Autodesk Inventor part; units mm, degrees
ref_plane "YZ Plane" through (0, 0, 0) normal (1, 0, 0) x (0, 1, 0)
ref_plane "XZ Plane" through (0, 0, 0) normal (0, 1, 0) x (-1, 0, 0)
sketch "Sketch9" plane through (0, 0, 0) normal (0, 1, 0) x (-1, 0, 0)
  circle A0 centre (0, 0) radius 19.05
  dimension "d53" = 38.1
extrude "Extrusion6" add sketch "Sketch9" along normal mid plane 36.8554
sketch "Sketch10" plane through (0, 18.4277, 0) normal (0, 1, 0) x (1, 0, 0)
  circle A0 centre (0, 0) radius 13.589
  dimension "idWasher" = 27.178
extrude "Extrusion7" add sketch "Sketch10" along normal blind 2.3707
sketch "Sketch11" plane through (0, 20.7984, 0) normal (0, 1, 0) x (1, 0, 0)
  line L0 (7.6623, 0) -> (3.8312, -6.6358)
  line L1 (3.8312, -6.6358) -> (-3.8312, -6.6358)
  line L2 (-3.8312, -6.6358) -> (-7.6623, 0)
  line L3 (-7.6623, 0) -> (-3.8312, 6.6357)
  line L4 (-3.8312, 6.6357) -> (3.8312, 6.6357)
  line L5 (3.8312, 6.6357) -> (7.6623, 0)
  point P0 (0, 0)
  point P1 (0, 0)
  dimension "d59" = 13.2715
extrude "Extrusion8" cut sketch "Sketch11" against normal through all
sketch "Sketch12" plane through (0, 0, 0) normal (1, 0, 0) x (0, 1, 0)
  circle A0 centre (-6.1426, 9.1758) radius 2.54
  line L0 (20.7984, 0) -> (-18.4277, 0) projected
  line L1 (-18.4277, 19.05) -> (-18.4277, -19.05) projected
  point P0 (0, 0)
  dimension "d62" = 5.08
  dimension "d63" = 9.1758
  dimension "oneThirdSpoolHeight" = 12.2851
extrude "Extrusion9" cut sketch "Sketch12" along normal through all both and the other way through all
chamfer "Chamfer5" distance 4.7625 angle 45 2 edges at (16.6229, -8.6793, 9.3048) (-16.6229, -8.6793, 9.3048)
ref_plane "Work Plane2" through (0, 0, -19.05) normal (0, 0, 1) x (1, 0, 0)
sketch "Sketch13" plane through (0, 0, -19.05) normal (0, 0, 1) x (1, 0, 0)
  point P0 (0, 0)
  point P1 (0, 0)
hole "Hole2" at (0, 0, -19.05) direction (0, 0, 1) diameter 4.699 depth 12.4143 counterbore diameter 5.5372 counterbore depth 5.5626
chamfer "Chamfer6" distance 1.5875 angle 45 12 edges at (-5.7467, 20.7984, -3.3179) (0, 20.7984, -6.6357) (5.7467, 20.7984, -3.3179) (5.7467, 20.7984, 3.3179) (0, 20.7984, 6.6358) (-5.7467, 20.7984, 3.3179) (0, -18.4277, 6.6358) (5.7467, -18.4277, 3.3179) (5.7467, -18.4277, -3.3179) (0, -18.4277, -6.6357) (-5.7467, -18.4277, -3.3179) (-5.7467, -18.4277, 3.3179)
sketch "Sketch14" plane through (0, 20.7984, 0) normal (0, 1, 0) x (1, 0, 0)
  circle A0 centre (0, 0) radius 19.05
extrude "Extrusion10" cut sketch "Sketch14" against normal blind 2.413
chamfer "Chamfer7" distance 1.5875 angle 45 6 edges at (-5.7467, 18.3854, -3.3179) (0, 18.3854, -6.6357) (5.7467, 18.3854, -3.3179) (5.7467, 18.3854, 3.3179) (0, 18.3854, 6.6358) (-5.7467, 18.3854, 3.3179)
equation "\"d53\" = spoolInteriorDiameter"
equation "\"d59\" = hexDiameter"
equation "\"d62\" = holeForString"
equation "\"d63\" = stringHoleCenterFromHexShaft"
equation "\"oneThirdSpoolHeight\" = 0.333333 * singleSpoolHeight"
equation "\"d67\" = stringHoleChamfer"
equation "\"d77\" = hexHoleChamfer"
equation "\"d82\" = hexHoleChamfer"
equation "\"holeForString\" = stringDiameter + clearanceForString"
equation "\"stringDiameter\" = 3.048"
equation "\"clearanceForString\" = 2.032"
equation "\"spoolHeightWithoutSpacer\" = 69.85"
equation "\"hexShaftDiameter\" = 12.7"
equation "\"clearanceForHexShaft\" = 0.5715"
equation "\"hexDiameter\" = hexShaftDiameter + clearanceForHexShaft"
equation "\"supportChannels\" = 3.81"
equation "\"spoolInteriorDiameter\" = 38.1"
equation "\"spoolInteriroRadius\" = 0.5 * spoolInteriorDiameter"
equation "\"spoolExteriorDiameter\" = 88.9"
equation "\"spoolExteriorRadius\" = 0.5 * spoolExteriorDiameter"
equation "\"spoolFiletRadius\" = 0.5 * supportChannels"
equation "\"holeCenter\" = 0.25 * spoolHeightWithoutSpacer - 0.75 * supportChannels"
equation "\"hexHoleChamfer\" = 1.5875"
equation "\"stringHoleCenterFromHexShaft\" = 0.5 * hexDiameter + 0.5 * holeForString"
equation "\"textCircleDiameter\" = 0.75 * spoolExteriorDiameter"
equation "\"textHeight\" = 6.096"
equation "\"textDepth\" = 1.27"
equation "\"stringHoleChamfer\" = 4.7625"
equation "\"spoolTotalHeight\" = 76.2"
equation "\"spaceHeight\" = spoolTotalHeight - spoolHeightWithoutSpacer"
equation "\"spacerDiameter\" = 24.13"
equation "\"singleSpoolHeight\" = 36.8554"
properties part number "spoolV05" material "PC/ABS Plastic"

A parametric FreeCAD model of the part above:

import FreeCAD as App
import Part
import Sketcher
from FreeCAD import Vector
Q = App.Units.Quantity


def edges_at(feature, points):
    """Names of the edges that pass closest to the given points."""
    edges = feature.Shape.Edges
    near = lambda p: min(range(len(edges)), key=lambda i: edges[i].distToShape(Part.Vertex(*p))[0])
    return sorted({f"Edge{near(p) + 1}" for p in points})


def add_polygon(sketch, points):
    """Adds a closed chain of lines whose ends are joined by coincident constraints."""
    first, n = sketch.GeometryCount, len(points)
    for a, b in zip(points, points[1:] + points[:1]):
        sketch.addGeometry(Part.LineSegment(App.Vector(*a, 0), App.Vector(*b, 0)), False)
    for i in range(n):
        sketch.addConstraint(Sketcher.Constraint("Coincident", first + i, 2, first + (i + 1) % n, 1))

doc = App.newDocument("Part")
body = doc.addObject("PartDesign::Body", "Body")

# Sketch on XZ plane
sketch1 = body.newObject("Sketcher::SketchObject", "Sketch")
sketch1.AttachmentSupport = (doc.getObject("XZ_Plane"), [""])
sketch1.MapMode = "FlatFace"
sketch1.addGeometry(Part.Circle(Vector(0, 0, 0), Vector(0, 0, 1), 19.05), False)
sketch1.addConstraint([
    Sketcher.Constraint("Coincident", 0, 3, -1, 1),
    Sketcher.Constraint("Diameter", 0, Q("1.5 in")),
])
pad1 = body.newObject("PartDesign::Pad", "Pad")
pad1.Profile = sketch1
pad1.Length = Q("1.451 in")
pad1.Midplane = True

# Sketch on XZ plane
sketch2 = body.newObject("Sketcher::SketchObject", "Sketch001")
sketch2.AttachmentSupport = (doc.getObject("XZ_Plane"), [""])
sketch2.MapMode = "FlatFace"
sketch2.AttachmentOffset = App.Placement(Vector(0, 0, -0.7255 * 25.4), App.Rotation())
sketch2.addGeometry(Part.Circle(Vector(0, 0, 0), Vector(0, 0, 1), 13.589), False)
sketch2.addConstraint([
    Sketcher.Constraint("Coincident", 0, 3, -1, 1),
    Sketcher.Constraint("Diameter", 0, Q("1.07 in")),
])
pad2 = body.newObject("PartDesign::Pad", "Pad001")
pad2.Profile = sketch2
pad2.Length = 2.3707
pad2.Reversed = True

# Sketch on XZ plane
sketch3 = body.newObject("Sketcher::SketchObject", "Sketch002")
sketch3.AttachmentSupport = (doc.getObject("XZ_Plane"), [""])
sketch3.MapMode = "FlatFace"
sketch3.AttachmentOffset = App.Placement(Vector(0, 0, -20.7984), App.Rotation())
add_polygon(sketch3, [(3.8312, 6.6358), (7.6623, 0), (3.8312, -6.6357), (-3.8312, -6.6357), (-7.6623, 0), (-3.8312, 6.6358)])  # lines 0-5
sketch3.addConstraint([
    Sketcher.Constraint("Horizontal", 2),
    Sketcher.Constraint("Horizontal", 5),
    Sketcher.Constraint("Symmetric", 0, 2, 3, 2, -1, 1),
    Sketcher.Constraint("Symmetric", 1, 2, 4, 2, -1, 1),
    Sketcher.Constraint("PointOnObject", 0, 2, -1),
    Sketcher.Constraint("Parallel", 0, 3),
    Sketcher.Constraint("Vertical", 2, 2, 4, 2),
    Sketcher.Constraint("Angle", 0, Q("-60.0005 deg")),
    Sketcher.Constraint("DistanceY", 2, 2, 4, 2, Q("0.5225 in")),
    Sketcher.Constraint("DistanceX", 2, 2, 2, 1, Q("7.6624 mm")),
])
pocket1 = body.newObject("PartDesign::Pocket", "Pocket")
pocket1.Profile = sketch3
pocket1.Type = "ThroughAll"
pocket1.Reversed = True

# Sketch on YZ plane
sketch4 = body.newObject("Sketcher::SketchObject", "Sketch003")
sketch4.AttachmentSupport = (doc.getObject("YZ_Plane"), [""])
sketch4.MapMode = "FlatFace"
sketch4.addGeometry(Part.Circle(Vector(-6.1426, 9.1758, 0), Vector(0, 0, 1), 2.54), False)
sketch4.addConstraint([
    Sketcher.Constraint("Diameter", 0, Q("0.2 in")),
    Sketcher.Constraint("DistanceY", -1, 1, 0, 3, Q("9.1758 mm")),
    Sketcher.Constraint("DistanceX", 0, 3, -1, 1, Q("6.1426 mm")),
])
pocket2 = body.newObject("PartDesign::Pocket", "Pocket001")
pocket2.Profile = sketch4
pocket2.Type = "ThroughAll"
pocket2.Midplane = True
doc.recompute()

chamfer = body.newObject("PartDesign::Chamfer", "Chamfer")
chamfer.Base = (pocket2, edges_at(pocket2, [(16.623, -8.679, 9.305), (-16.623, -8.679, 9.305)]))
chamfer.Size = Q("0.1875 in")

# Sketch on XY plane
sketch5 = body.newObject("Sketcher::SketchObject", "Sketch004")
sketch5.AttachmentSupport = (doc.getObject("XY_Plane"), [""])
sketch5.MapMode = "FlatFace"
sketch5.AttachmentOffset = App.Placement(Vector(0, 0, -0.75 * 25.4), App.Rotation())
sketch5.addGeometry(Part.Circle(Vector(0, 0, 0), Vector(0, 0, 1), 2.3495), False)
sketch5.addConstraint([
    Sketcher.Constraint("Coincident", 0, 3, -1, 1),
    Sketcher.Constraint("Diameter", 0, Q("0.185 in")),
])
doc.recompute()
hole = body.newObject("PartDesign::Hole", "Hole")
hole.Profile = sketch5
hole.ThreadType = "None"
hole.Diameter = Q("0.185 in")
hole.DepthType = "Dimension"
hole.Depth = 12.4143
hole.DrillPoint = "Flat"
hole.HoleCutType = "Counterbore"
hole.HoleCutDiameter = Q("0.218 in")
hole.HoleCutDepth = Q("0.219 in")
hole.Reversed = True
doc.recompute()

chamfer2 = body.newObject("PartDesign::Chamfer", "Chamfer001")
chamfer2.Base = (hole, edges_at(hole, [
    (-5.747, 20.798, -3.318),
    (0, 20.798, -6.636),
    (5.747, 20.798, -3.318),
    (5.747, 20.798, 3.318),
    (0, 20.798, 6.636),
    (-5.747, 20.798, 3.318),
    (0, -18.428, 6.636),
    (5.747, -18.428, 3.318),
    (5.747, -18.428, -3.318),
    (0, -18.428, -6.636),
    (-5.747, -18.428, -3.318),
    (-5.747, -18.428, 3.318),
]))
chamfer2.Size = Q("0.0625 in")

# Sketch on XZ plane
sketch6 = body.newObject("Sketcher::SketchObject", "Sketch005")
sketch6.AttachmentSupport = (doc.getObject("XZ_Plane"), [""])
sketch6.MapMode = "FlatFace"
sketch6.AttachmentOffset = App.Placement(Vector(0, 0, -20.7984), App.Rotation())
sketch6.addGeometry(Part.Circle(Vector(0, 0, 0), Vector(0, 0, 1), 19.05), False)
sketch6.addConstraint([
    Sketcher.Constraint("Coincident", 0, 3, -1, 1),
    Sketcher.Constraint("Diameter", 0, Q("1.5 in")),
])
pocket3 = body.newObject("PartDesign::Pocket", "Pocket002")
pocket3.Profile = sketch6
pocket3.Length = Q("0.095 in")
pocket3.Reversed = True
doc.recompute()

chamfer3 = body.newObject("PartDesign::Chamfer", "Chamfer002")
chamfer3.Base = (pocket3, edges_at(pocket3, [
    (-5.747, 18.385, -3.318),
    (0, 18.385, -6.636),
    (5.747, 18.385, -3.318),
    (5.747, 18.385, 3.318),
    (0, 18.385, 6.636),
    (-5.747, 18.385, 3.318),
]))
chamfer3.Size = Q("0.0625 in")

doc.recompute()
